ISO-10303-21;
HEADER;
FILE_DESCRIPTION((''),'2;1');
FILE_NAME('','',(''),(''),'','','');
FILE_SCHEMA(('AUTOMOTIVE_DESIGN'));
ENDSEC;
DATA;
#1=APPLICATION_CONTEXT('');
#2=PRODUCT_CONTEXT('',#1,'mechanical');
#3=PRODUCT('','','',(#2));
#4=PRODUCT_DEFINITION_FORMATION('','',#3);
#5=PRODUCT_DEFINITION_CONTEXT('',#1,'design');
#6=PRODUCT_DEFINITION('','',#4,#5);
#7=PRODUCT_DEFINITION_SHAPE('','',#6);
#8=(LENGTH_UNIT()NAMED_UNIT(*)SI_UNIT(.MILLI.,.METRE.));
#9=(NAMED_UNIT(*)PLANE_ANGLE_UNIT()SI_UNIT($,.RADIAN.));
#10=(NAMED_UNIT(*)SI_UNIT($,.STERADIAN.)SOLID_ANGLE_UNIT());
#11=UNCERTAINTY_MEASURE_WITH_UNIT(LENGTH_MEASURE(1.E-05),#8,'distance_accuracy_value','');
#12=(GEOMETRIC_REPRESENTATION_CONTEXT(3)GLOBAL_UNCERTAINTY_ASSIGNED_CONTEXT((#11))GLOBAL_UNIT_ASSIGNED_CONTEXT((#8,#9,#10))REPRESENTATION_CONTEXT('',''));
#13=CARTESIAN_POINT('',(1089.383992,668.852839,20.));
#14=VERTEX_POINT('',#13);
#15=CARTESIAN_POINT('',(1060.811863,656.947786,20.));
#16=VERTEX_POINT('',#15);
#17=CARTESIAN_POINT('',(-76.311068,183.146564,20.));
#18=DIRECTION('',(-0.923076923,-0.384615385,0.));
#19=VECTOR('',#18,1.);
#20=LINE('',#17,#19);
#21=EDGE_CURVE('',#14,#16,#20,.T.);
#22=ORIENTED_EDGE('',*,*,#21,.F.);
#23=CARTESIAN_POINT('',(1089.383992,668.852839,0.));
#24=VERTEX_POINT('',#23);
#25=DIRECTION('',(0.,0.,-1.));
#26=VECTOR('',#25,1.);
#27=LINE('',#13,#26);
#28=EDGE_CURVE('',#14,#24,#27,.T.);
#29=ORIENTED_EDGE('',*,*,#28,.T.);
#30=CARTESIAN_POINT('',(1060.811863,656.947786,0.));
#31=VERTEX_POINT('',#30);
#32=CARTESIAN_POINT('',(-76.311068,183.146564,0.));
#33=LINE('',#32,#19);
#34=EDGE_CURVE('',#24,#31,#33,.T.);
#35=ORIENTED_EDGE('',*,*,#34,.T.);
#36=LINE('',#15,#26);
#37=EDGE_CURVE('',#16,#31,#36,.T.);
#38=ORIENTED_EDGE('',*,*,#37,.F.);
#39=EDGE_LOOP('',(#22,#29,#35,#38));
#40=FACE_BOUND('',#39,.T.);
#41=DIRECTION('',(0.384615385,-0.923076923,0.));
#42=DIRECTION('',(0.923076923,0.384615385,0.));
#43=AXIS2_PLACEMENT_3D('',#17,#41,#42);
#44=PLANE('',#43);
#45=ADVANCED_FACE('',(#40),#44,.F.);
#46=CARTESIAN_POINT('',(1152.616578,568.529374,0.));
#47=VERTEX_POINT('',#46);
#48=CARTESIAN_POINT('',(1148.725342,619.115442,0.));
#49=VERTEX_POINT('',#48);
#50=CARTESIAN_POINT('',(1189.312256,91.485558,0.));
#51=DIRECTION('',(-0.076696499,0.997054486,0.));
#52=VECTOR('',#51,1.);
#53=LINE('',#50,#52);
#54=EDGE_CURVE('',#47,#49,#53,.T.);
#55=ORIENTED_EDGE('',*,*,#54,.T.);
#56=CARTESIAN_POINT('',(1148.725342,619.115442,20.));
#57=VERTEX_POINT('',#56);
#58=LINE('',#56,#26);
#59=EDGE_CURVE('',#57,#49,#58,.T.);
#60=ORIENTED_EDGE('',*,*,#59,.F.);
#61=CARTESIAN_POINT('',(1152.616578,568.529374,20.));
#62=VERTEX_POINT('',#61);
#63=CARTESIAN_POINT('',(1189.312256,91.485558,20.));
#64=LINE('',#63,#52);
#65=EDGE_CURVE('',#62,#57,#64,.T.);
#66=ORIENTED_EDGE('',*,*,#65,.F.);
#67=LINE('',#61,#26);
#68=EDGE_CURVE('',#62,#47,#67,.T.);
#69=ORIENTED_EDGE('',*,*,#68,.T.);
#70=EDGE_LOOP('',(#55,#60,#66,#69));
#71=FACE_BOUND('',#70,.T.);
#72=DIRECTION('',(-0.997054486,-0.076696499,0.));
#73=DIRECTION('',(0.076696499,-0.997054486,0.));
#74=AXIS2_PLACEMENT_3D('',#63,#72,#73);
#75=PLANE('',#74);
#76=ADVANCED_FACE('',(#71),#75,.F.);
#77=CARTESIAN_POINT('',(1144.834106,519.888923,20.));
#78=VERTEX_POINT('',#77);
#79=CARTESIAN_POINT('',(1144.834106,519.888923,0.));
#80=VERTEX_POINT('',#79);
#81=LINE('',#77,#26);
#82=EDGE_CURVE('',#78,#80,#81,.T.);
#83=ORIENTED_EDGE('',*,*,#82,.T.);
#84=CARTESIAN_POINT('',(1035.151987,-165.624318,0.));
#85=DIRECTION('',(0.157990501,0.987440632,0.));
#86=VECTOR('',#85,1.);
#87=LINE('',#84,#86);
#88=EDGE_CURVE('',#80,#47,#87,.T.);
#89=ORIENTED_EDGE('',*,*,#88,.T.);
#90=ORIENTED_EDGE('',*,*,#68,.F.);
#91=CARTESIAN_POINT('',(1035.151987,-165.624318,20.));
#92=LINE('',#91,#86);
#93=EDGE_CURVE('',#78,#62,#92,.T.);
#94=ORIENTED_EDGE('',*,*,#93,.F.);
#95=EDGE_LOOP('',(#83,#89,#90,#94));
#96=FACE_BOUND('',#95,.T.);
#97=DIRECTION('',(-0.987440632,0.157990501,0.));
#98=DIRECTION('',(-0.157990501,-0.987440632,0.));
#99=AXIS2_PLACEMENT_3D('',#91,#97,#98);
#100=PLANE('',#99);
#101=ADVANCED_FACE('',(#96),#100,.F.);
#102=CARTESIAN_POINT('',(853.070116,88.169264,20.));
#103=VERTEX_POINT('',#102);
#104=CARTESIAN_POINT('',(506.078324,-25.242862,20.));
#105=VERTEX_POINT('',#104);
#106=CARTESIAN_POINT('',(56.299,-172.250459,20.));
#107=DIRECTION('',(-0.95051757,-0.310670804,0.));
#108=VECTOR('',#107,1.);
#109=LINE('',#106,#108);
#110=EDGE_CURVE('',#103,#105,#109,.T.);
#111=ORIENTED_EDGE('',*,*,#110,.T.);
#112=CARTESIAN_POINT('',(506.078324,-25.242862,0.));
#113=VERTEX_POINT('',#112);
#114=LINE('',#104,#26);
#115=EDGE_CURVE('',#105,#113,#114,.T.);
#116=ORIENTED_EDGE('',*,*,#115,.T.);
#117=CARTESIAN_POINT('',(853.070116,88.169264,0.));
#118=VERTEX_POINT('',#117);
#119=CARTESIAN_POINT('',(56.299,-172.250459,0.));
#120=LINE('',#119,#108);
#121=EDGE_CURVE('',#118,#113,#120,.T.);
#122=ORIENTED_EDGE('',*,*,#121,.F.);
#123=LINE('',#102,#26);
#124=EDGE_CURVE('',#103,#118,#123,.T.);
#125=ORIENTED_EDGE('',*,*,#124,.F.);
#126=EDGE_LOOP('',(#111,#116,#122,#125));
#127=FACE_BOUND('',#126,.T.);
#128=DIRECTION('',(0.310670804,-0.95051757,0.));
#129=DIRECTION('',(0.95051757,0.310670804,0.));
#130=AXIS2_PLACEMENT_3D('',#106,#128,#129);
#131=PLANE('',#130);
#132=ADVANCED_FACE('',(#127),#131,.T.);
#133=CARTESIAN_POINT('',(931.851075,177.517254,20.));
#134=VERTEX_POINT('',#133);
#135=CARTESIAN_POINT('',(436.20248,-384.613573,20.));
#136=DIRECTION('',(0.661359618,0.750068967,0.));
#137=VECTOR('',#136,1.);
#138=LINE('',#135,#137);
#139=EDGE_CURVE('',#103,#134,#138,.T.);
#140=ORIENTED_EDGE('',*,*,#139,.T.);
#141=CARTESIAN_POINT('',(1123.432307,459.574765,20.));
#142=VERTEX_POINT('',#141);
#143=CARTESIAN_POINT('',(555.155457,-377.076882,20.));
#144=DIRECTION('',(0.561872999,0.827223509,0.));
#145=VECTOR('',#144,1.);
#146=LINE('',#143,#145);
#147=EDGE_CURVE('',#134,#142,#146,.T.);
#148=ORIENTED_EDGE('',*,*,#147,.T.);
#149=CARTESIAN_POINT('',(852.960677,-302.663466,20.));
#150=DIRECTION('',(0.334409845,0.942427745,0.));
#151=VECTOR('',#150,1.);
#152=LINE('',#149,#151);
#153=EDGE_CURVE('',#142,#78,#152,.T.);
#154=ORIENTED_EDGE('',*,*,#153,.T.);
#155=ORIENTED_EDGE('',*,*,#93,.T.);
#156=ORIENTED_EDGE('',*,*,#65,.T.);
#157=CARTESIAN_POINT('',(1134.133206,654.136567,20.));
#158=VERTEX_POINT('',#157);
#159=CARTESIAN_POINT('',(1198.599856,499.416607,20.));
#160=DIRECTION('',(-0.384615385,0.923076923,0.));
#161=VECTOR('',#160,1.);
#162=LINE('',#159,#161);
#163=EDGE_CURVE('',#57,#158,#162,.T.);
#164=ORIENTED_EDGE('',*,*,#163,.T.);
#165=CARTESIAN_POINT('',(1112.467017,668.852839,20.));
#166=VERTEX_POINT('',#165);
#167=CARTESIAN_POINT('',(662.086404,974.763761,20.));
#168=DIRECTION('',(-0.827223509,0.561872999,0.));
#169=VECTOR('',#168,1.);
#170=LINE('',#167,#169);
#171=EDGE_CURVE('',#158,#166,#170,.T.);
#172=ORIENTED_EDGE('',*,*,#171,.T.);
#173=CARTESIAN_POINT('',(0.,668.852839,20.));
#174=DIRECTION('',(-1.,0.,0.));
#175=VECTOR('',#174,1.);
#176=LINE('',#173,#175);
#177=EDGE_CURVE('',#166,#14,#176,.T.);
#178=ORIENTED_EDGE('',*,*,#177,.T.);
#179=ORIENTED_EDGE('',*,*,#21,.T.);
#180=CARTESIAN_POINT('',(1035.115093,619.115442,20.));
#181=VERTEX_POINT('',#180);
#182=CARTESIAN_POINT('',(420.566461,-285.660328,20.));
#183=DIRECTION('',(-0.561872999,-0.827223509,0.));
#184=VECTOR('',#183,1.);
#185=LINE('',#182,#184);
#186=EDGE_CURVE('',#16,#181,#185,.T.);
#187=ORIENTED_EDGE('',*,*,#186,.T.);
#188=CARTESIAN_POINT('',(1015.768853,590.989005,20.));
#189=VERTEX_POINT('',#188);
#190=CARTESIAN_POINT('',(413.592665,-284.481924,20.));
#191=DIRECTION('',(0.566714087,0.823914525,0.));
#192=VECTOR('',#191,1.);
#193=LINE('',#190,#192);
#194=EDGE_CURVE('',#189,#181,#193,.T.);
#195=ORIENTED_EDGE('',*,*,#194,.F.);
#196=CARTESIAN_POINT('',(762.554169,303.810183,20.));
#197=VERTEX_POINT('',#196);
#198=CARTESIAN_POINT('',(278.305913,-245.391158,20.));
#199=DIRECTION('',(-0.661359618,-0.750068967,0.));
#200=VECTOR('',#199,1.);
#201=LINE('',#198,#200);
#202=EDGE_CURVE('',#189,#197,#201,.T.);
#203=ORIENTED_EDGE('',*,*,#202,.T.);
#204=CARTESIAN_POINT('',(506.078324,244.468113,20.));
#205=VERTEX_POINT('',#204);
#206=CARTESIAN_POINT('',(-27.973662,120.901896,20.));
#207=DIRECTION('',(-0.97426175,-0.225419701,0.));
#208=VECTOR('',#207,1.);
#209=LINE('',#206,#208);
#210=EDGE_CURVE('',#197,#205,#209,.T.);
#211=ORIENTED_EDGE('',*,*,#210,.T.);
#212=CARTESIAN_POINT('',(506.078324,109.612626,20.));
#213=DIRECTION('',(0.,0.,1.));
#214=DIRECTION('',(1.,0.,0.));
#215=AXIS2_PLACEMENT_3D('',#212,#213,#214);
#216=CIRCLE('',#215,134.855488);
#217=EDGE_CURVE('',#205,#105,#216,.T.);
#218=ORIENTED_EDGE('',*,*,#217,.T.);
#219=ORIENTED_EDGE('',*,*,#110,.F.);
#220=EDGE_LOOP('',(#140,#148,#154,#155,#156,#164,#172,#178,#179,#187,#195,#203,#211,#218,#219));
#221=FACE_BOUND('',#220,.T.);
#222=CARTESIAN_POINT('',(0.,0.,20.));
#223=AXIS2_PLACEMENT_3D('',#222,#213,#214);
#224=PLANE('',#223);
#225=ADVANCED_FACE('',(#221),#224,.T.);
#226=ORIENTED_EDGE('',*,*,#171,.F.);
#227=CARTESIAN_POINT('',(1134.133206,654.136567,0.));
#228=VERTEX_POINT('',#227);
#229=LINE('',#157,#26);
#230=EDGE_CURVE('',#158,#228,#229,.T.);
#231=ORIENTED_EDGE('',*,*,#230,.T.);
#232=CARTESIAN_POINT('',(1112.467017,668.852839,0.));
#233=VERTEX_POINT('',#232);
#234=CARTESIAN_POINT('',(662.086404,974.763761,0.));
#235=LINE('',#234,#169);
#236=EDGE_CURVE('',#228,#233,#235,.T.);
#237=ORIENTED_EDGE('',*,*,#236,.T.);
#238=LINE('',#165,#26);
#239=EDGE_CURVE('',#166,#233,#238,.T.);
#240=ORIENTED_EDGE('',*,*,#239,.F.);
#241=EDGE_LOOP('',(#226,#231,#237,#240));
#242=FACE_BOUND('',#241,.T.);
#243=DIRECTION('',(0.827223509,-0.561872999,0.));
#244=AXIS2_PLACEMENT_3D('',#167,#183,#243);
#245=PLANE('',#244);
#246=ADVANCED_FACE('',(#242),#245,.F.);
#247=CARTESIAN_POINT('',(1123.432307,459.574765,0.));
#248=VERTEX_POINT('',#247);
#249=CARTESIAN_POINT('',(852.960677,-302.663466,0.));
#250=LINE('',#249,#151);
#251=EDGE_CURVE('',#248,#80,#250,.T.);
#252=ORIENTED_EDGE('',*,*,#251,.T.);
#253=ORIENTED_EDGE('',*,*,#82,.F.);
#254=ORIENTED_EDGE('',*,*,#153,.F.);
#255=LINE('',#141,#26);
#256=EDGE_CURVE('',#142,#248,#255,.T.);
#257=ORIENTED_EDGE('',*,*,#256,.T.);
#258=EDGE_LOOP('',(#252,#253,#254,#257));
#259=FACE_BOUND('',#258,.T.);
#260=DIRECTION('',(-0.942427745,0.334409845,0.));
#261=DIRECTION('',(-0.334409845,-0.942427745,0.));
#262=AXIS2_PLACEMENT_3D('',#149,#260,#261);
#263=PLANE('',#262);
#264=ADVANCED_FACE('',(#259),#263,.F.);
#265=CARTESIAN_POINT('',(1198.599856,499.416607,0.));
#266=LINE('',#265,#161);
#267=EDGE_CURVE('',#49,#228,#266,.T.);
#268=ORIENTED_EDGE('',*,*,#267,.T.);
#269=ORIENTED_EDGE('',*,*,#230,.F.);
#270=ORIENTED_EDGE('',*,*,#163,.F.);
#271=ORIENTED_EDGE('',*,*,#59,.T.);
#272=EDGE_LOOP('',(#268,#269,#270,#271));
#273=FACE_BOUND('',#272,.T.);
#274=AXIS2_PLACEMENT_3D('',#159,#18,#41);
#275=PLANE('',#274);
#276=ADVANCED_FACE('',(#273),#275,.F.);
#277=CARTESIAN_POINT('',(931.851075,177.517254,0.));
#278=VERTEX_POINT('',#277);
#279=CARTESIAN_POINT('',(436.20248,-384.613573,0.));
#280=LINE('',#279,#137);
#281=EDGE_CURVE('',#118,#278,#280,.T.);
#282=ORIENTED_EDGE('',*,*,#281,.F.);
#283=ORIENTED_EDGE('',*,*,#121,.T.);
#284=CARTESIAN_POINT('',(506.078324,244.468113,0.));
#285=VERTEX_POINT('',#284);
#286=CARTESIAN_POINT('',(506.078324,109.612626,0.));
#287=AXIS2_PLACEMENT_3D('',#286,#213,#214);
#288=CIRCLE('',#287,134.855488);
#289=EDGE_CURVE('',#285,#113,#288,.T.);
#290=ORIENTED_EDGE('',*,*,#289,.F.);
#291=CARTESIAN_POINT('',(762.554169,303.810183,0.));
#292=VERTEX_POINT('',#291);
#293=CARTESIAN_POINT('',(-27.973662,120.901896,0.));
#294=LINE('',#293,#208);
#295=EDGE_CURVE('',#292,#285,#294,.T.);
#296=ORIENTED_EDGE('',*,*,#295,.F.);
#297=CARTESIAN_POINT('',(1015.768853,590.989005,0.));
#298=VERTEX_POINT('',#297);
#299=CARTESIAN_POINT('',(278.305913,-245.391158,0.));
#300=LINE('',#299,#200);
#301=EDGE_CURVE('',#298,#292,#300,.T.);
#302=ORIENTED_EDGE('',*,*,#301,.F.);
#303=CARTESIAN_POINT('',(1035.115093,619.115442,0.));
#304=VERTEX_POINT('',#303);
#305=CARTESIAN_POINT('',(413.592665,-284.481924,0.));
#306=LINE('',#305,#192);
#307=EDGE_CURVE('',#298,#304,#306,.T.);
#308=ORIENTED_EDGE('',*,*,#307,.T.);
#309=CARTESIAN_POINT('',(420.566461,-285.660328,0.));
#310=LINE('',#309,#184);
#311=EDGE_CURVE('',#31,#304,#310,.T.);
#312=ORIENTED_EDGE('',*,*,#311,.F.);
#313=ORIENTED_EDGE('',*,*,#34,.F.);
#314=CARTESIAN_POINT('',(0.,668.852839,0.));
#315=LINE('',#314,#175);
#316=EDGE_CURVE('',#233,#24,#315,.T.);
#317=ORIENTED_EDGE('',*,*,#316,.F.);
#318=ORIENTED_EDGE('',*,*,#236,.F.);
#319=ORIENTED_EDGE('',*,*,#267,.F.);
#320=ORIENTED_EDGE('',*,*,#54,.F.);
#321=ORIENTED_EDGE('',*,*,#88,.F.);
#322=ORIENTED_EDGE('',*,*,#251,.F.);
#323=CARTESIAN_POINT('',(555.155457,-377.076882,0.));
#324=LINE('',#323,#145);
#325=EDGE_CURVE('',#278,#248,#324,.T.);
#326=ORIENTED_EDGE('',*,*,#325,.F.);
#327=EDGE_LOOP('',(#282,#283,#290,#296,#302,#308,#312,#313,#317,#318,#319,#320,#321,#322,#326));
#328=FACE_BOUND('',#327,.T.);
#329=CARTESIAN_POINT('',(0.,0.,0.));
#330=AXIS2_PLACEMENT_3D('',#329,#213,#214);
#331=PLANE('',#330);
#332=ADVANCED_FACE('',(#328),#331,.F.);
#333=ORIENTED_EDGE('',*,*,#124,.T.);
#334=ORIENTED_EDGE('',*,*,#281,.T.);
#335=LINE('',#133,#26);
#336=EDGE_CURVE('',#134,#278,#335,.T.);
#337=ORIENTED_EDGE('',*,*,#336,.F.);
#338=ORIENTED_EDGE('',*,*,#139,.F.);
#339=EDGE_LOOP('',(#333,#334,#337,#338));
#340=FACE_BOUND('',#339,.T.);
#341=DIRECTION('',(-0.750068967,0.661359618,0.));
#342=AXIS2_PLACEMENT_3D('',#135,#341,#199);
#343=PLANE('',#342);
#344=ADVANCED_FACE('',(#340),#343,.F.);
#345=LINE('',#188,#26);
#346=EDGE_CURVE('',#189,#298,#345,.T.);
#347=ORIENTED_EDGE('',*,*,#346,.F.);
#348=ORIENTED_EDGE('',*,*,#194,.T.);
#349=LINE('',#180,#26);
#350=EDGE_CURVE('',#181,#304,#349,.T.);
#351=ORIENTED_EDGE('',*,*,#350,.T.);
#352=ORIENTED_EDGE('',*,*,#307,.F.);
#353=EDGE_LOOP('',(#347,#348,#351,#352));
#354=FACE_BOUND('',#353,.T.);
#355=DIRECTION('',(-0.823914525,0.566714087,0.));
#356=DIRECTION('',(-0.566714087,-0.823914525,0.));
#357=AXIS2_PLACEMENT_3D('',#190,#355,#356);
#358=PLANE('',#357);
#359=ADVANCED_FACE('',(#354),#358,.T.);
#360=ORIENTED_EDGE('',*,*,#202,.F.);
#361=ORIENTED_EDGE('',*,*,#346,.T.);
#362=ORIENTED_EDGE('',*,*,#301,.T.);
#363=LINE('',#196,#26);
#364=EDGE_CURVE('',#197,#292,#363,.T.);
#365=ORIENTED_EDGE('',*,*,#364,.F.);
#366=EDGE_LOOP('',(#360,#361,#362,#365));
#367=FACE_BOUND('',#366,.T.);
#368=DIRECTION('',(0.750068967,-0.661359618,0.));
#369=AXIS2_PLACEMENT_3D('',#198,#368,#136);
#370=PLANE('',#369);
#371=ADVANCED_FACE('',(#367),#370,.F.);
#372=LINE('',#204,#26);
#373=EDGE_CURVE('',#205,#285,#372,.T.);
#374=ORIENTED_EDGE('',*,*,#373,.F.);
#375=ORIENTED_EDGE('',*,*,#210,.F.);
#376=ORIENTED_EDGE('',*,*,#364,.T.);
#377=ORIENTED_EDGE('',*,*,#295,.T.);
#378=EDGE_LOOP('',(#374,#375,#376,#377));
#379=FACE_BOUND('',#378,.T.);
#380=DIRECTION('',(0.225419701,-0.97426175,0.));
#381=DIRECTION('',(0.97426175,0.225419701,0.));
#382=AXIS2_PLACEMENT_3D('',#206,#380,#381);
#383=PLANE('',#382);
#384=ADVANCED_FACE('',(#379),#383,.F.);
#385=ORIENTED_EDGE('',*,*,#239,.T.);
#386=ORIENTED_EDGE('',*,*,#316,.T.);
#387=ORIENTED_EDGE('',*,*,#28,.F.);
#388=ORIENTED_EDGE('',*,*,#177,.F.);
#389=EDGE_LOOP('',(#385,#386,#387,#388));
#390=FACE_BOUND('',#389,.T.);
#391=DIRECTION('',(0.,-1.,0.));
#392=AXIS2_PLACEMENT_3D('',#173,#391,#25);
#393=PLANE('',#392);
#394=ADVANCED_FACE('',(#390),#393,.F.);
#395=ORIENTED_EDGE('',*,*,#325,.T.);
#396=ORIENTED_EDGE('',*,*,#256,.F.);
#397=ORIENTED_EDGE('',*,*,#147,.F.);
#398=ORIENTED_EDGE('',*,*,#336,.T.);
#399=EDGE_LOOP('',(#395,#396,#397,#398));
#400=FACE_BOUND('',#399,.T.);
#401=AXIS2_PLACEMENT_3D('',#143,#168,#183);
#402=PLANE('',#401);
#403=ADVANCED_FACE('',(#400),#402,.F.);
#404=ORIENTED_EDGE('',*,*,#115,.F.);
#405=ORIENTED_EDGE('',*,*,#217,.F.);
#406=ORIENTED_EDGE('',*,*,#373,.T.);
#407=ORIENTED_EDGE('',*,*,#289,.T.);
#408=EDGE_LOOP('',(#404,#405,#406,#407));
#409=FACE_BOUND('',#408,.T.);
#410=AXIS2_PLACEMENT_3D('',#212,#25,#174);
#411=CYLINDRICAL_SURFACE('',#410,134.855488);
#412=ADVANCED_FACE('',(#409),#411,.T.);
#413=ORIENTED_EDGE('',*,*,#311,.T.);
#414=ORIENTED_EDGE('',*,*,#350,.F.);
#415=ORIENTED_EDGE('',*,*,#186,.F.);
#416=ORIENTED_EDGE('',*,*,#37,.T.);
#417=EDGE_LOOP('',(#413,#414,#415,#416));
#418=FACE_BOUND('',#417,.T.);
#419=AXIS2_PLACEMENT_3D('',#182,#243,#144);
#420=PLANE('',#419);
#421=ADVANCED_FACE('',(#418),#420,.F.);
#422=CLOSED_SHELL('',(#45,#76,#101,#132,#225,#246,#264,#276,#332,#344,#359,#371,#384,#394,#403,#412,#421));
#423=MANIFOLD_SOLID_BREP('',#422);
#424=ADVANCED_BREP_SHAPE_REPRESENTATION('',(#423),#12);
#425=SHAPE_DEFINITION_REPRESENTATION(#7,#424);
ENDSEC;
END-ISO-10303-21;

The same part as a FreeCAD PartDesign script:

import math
import FreeCAD as App
import Part
import Sketcher
Q = App.Units.Quantity

doc = App.newDocument("Part")
params = doc.addObject("Spreadsheet::Sheet", "Params")
for row, (alias, value) in enumerate([
    ("pad1_length", "20 mm"),
], start=1):
    params.set(f"A{row}", alias)
    params.set(f"B{row}", "=" + value)
    params.setAlias(f"B{row}", alias)

body = doc.addObject("PartDesign::Body", "Body")

sketch1 = doc.addObject("Sketcher::SketchObject", "Sketch")
body.addObject(sketch1)
sketch1.AttachmentSupport = (doc.XY_Plane, [""])
sketch1.MapMode = "FlatFace"
sketch1.addGeometry(Part.LineSegment(App.Vector(853, 88, 0), App.Vector(932, 178, 0)), False)
sketch1.addGeometry(Part.LineSegment(App.Vector(932, 178, 0), App.Vector(1123, 460, 0)), False)
sketch1.addGeometry(Part.LineSegment(App.Vector(1123, 460, 0), App.Vector(1145, 520, 0)), False)
sketch1.addGeometry(Part.LineSegment(App.Vector(1145, 520, 0), App.Vector(1153, 569, 0)), False)
sketch1.addGeometry(Part.LineSegment(App.Vector(1153, 569, 0), App.Vector(1149, 619, 0)), False)
sketch1.addGeometry(Part.LineSegment(App.Vector(1149, 619, 0), App.Vector(1134, 654, 0)), False)
sketch1.addGeometry(Part.LineSegment(App.Vector(1134, 654, 0), App.Vector(1112, 669, 0)), False)
sketch1.addGeometry(Part.LineSegment(App.Vector(1112, 669, 0), App.Vector(1089, 669, 0)), False)
sketch1.addGeometry(Part.LineSegment(App.Vector(1089, 669, 0), App.Vector(1061, 657, 0)), False)
sketch1.addGeometry(Part.LineSegment(App.Vector(1061, 657, 0), App.Vector(1035, 619, 0)), False)
sketch1.addGeometry(Part.LineSegment(App.Vector(1035, 619, 0), App.Vector(1016, 591, 0)), False)
sketch1.addGeometry(Part.LineSegment(App.Vector(1016, 591, 0), App.Vector(763, 304, 0)), False)
sketch1.addGeometry(Part.LineSegment(App.Vector(763, 304, 0), App.Vector(506, 244, 0)), False)
sketch1.addGeometry(Part.ArcOfCircle(Part.Circle(App.Vector(506, 110, 0), App.Vector(0, 0, 1), 135), math.radians(90), math.radians(270)), False)
sketch1.addGeometry(Part.LineSegment(App.Vector(506, -25, 0), App.Vector(853, 88, 0)), False)
sketch1.addConstraint(Sketcher.Constraint("Coincident", 0, 2, 1, 1))
sketch1.addConstraint(Sketcher.Constraint("Coincident", 1, 2, 2, 1))
sketch1.addConstraint(Sketcher.Constraint("Coincident", 2, 2, 3, 1))
sketch1.addConstraint(Sketcher.Constraint("Coincident", 3, 2, 4, 1))
sketch1.addConstraint(Sketcher.Constraint("Coincident", 4, 2, 5, 1))
sketch1.addConstraint(Sketcher.Constraint("Coincident", 5, 2, 6, 1))
sketch1.addConstraint(Sketcher.Constraint("Coincident", 6, 2, 7, 1))
sketch1.addConstraint(Sketcher.Constraint("Coincident", 7, 2, 8, 1))
sketch1.addConstraint(Sketcher.Constraint("Coincident", 8, 2, 9, 1))
sketch1.addConstraint(Sketcher.Constraint("Coincident", 9, 2, 10, 1))
sketch1.addConstraint(Sketcher.Constraint("Coincident", 10, 2, 11, 1))
sketch1.addConstraint(Sketcher.Constraint("Coincident", 11, 2, 12, 1))
sketch1.addConstraint(Sketcher.Constraint("Coincident", 12, 2, 13, 1))
sketch1.addConstraint(Sketcher.Constraint("Coincident", 13, 2, 14, 1))
sketch1.addConstraint(Sketcher.Constraint("Coincident", 14, 2, 0, 1))
sketch1.addConstraint(Sketcher.Constraint("Horizontal", 7))
sketch1.addConstraint(Sketcher.Constraint("Perpendicular", 1, 6))
sketch1.addConstraint(Sketcher.Constraint("Perpendicular", 5, 8))
sketch1.addConstraint(Sketcher.Constraint("Perpendicular", 6, 9))
sketch1.addConstraint(Sketcher.Constraint("Parallel", 0, 11))
sketch1.addConstraint(Sketcher.Constraint("Horizontal", 4, 2, 9, 2))
sketch1.addConstraint(Sketcher.Constraint("Vertical", 13, 3, 12, 2))
sketch1.addConstraint(Sketcher.Constraint("Vertical", 12, 2, 13, 2))
sketch1.addConstraint(Sketcher.Constraint("Radius", 13, Q("134.855488 mm")))
sketch1.addConstraint(Sketcher.Constraint("Distance", 0, Q("119.119698 mm")))
sketch1.addConstraint(Sketcher.Constraint("DistanceX", 1, 2, 2, 2, Q("21.401798 mm")))
sketch1.addConstraint(Sketcher.Constraint("DistanceX", 5, 2, 2, 2, Q("10.700899 mm")))
sketch1.addConstraint(Sketcher.Constraint("DistanceX", 9, 2, 7, 2, Q("54.268898 mm")))
sketch1.addConstraint(Sketcher.Constraint("Distance", 2, Q("63.998709 mm")))
sketch1.addConstraint(Sketcher.Constraint("Distance", 4, Q("50.735511 mm")))
sketch1.addConstraint(Sketcher.Constraint("Distance", 5, Q("37.939551 mm")))
sketch1.addConstraint(Sketcher.Constraint("Distance", 8, Q("30.953139 mm")))
sketch1.addConstraint(Sketcher.Constraint("Distance", 11, Q("382.869889 mm")))
sketch1.addConstraint(Sketcher.Constraint("DistanceX", 7, 2, 7, 1, Q("23.083025 mm")))
sketch1.addConstraint(Sketcher.Constraint("DistanceX", -1, 1, 4, 2, Q("1148.725342 mm")))
sketch1.addConstraint(Sketcher.Constraint("DistanceY", -1, 1, 6, 2, Q("668.852839 mm")))
sketch1.addConstraint(Sketcher.Constraint("DistanceX", -1, 1, 7, 2, Q("1089.383992 mm")))
sketch1.addConstraint(Sketcher.Constraint("DistanceX", -1, 1, 11, 2, Q("762.554169 mm")))
sketch1.addConstraint(Sketcher.Constraint("DistanceX", 13, 3, 0, 2, Q("425.772751 mm")))
sketch1.addConstraint(Sketcher.Constraint("DistanceY", 13, 3, 0, 2, Q("67.904628 mm")))
sketch1.addConstraint(Sketcher.Constraint("DistanceY", 0, 2, 1, 2, Q("282.057511 mm")))
sketch1.addConstraint(Sketcher.Constraint("DistanceX", 0, 2, 2, 2, Q("212.983031 mm")))
sketch1.addConstraint(Sketcher.Constraint("DistanceY", 2, 2, 3, 2, Q("48.640451 mm")))
sketch1.addConstraint(Sketcher.Constraint("DistanceX", 1, 2, 3, 2, Q("29.18427 mm")))
sketch1.addConstraint(Sketcher.Constraint("DistanceX", 10, 2, 9, 2, Q("19.34624 mm")))
sketch1.addConstraint(Sketcher.Constraint("DistanceY", 10, 2, 8, 2, Q("65.958781 mm")))
pad1 = doc.addObject("PartDesign::Pad", "Pad")
body.addObject(pad1)
pad1.Profile = sketch1
pad1.setExpression("Length", "Params.pad1_length")

doc.recompute()
